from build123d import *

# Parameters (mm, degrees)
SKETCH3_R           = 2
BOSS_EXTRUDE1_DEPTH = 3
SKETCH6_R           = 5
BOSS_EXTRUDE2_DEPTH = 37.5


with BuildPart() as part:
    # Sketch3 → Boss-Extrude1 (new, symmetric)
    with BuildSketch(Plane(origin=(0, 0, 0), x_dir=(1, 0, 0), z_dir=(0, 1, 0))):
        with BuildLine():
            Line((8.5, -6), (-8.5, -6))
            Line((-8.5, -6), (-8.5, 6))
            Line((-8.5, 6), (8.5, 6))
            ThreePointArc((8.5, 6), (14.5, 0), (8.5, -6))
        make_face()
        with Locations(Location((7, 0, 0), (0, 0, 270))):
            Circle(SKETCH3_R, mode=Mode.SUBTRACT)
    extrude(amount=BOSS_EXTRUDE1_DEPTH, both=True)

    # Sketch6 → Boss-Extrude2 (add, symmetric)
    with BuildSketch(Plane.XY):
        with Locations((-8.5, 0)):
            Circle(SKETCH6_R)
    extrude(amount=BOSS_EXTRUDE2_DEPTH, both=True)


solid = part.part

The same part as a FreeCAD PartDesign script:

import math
import FreeCAD as App
import Part
import Sketcher

V = App.Vector
Q = App.Units.Quantity

doc = App.newDocument("Part")
body = doc.addObject("PartDesign::Body", "Body")

# Sketch on XZ plane
sketch1 = body.newObject("Sketcher::SketchObject", "Sketch")
sketch1.AttachmentSupport = (doc.getObject("XZ_Plane"), [""])
sketch1.MapMode = "FlatFace"
sketch1.addGeometry([
    Part.LineSegment(V(-8.5, 6, 0), V(8.5, 6, 0)),  # 0
    Part.ArcOfCircle(Part.Circle(V(8.5, 0, 0), V(0, 0, 1), 6), math.radians(-90), math.radians(90)),  # 1
    Part.LineSegment(V(8.5, -6, 0), V(-8.5, -6, 0)),  # 2
    Part.LineSegment(V(-8.5, -6, 0), V(-8.5, 6, 0)),  # 3
    Part.Circle(V(7, 0, 0), V(0, 0, 1), 2),  # 4
], False)
sketch1.addConstraint([
    Sketcher.Constraint("Tangent", 0, 2, 1, 2),
    Sketcher.Constraint("Tangent", 1, 1, 2, 1),
    Sketcher.Constraint("Coincident", 2, 2, 3, 1),
    Sketcher.Constraint("Coincident", 3, 2, 0, 1),
    Sketcher.Constraint("Horizontal", 0),
    Sketcher.Constraint("Horizontal", 2),
    Sketcher.Constraint("Vertical", 3),
    Sketcher.Constraint("Symmetric", 0, 2, 2, 2, -1, 1),
    Sketcher.Constraint("PointOnObject", 4, 3, -1),
    Sketcher.Constraint("Diameter", 4, Q("4 mm")),
    Sketcher.Constraint("Radius", 1, Q("6 mm")),
    Sketcher.Constraint("DistanceX", 0, 1, 0, 2, Q("17 mm")),
    Sketcher.Constraint("DistanceX", -1, 1, 4, 3, Q("7 mm")),
])
pad1 = body.newObject("PartDesign::Pad", "Pad")
pad1.Profile = sketch1
pad1.Length = 6
pad1.Midplane = True

# Sketch on XY plane
sketch2 = body.newObject("Sketcher::SketchObject", "Sketch001")
sketch2.AttachmentSupport = (doc.getObject("XY_Plane"), [""])
sketch2.MapMode = "FlatFace"
sketch2.addGeometry(Part.Circle(V(-8, 0, 0), V(0, 0, 1), 5), False)
sketch2.addConstraint([
    Sketcher.Constraint("PointOnObject", 0, 3, -1),
    Sketcher.Constraint("Diameter", 0, Q("10 mm")),
    Sketcher.Constraint("DistanceX", 0, 3, -1, 1, Q("8.5 mm")),
])
pad2 = body.newObject("PartDesign::Pad", "Pad001")
pad2.Profile = sketch2
pad2.Length = 75
pad2.Midplane = True

doc.recompute()
